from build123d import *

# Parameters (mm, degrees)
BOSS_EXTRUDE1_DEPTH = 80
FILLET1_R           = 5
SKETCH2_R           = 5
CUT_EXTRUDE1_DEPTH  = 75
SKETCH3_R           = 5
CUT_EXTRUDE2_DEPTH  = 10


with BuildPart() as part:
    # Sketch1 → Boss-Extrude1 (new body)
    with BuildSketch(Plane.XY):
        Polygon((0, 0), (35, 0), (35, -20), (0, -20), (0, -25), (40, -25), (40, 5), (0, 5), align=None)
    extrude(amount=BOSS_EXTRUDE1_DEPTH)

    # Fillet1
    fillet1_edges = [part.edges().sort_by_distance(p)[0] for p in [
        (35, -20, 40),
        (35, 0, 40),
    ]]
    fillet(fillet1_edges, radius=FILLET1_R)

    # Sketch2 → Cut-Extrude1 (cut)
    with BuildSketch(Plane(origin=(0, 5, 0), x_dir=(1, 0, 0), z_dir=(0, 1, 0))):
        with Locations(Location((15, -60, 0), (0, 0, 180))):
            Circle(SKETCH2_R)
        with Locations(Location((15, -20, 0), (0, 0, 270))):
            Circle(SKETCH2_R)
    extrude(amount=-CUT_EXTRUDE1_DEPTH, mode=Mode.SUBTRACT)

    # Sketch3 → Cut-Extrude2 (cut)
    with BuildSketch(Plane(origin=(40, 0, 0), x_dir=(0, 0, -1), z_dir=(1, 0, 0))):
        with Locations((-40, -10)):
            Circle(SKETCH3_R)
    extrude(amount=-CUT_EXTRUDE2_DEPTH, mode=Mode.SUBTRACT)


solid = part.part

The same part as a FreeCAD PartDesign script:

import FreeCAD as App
import Part
import Sketcher


def edges_at(feature, points):
    """Names of the edges that pass closest to the given points."""
    edges = feature.Shape.Edges
    near = lambda p: min(range(len(edges)), key=lambda i: edges[i].distToShape(Part.Vertex(*p))[0])
    return sorted({f"Edge{near(p) + 1}" for p in points})


def add_polygon(sketch, points):
    """Adds a closed chain of lines whose ends are joined by coincident constraints."""
    first, n = sketch.GeometryCount, len(points)
    for a, b in zip(points, points[1:] + points[:1]):
        sketch.addGeometry(Part.LineSegment(App.Vector(*a, 0), App.Vector(*b, 0)), False)
    for i in range(n):
        sketch.addConstraint(Sketcher.Constraint("Coincident", first + i, 2, first + (i + 1) % n, 1))

doc = App.newDocument("Part")
params = doc.addObject("Spreadsheet::Sheet", "Params")
for row, (alias, value) in enumerate([
    ("sketch1_width", "35 mm"),
    ("sketch1_width2", "40 mm"),
    ("sketch1_height", "20 mm"),
    ("sketch1_height2", "5 mm"),
    ("pad1_length", "80 mm"),
    ("fillet_radius", "5 mm"),
    ("sketch2_diameter", "10 mm"),
    ("pocket1_length", "75 mm"),
    ("sketch3_diameter", "10 mm"),
    ("pocket2_length", "10 mm"),
], start=1):
    params.set(f"A{row}", alias)
    params.set(f"B{row}", "=" + value)
    params.setAlias(f"B{row}", alias)

body = doc.addObject("PartDesign::Body", "Body")

# Sketch on XY plane
sketch1 = body.newObject("Sketcher::SketchObject", "Sketch")
sketch1.AttachmentSupport = (doc.getObject("XY_Plane"), [""])
sketch1.MapMode = "FlatFace"
add_polygon(sketch1, [(0, 0), (35, 0), (35, -20), (0, -20), (0, -25), (40, -25), (40, 5), (0, 5)])  # lines 0-7
sketch1.addConstraint(Sketcher.Constraint("Horizontal", 0))
sketch1.addConstraint(Sketcher.Constraint("Vertical", 1))
sketch1.addConstraint(Sketcher.Constraint("Horizontal", 2))
sketch1.addConstraint(Sketcher.Constraint("Vertical", 3))
sketch1.addConstraint(Sketcher.Constraint("Horizontal", 4))
sketch1.addConstraint(Sketcher.Constraint("Vertical", 5))
sketch1.addConstraint(Sketcher.Constraint("Horizontal", 6))
sketch1.addConstraint(Sketcher.Constraint("Vertical", 7))
sketch1.addConstraint(Sketcher.Constraint("Coincident", 7, 2, -1, 1))
sketch1.addConstraint(Sketcher.Constraint("PointOnObject", 2, 2, -2))
sketch1.addConstraint(Sketcher.Constraint("Equal", 3, 7))
sketch1.addConstraint(Sketcher.Constraint("DistanceX", 0, 1, 0, 2, 35.0))
sketch1.addConstraint(Sketcher.Constraint("DistanceX", 4, 1, 4, 2, 40.0))
sketch1.addConstraint(Sketcher.Constraint("DistanceY", 1, 2, 1, 1, 20.0))
sketch1.addConstraint(Sketcher.Constraint("DistanceY", 3, 2, 3, 1, 5.0))
sketch1.setExpression("Constraints[19]", "Params.sketch1_width")
sketch1.setExpression("Constraints[20]", "Params.sketch1_width2")
sketch1.setExpression("Constraints[21]", "Params.sketch1_height")
sketch1.setExpression("Constraints[22]", "Params.sketch1_height2")
pad1 = body.newObject("PartDesign::Pad", "Pad")
pad1.Profile = sketch1
pad1.setExpression("Length", "Params.pad1_length")
doc.recompute()

fillet = body.newObject("PartDesign::Fillet", "Fillet")
fillet.Base = (pad1, edges_at(pad1, [(35, -20, 40), (35, 0, 40)]))
fillet.setExpression("Radius", "Params.fillet_radius")

# Sketch on XZ plane
sketch2 = body.newObject("Sketcher::SketchObject", "Sketch001")
sketch2.AttachmentSupport = (doc.getObject("XZ_Plane"), [""])
sketch2.MapMode = "FlatFace"
sketch2.AttachmentOffset = App.Placement(App.Vector(0, 0, -5), App.Rotation())
sketch2.addGeometry(Part.Circle(App.Vector(15, 60, 0), App.Vector(0, 0, 1), 5), False)
sketch2.addGeometry(Part.Circle(App.Vector(15, 20, 0), App.Vector(0, 0, 1), 5), False)
sketch2.addConstraint(Sketcher.Constraint("Equal", 0, 1))
sketch2.addConstraint(Sketcher.Constraint("Vertical", 0, 3, 1, 3))
sketch2.addConstraint(Sketcher.Constraint("Diameter", 0, 10.0))
sketch2.addConstraint(Sketcher.Constraint("DistanceX", -1, 1, 0, 3, 15.0))
sketch2.addConstraint(Sketcher.Constraint("DistanceY", -1, 1, 0, 3, 60.0))
sketch2.addConstraint(Sketcher.Constraint("DistanceY", -1, 1, 1, 3, 20.0))
sketch2.setExpression("Constraints[2]", "Params.sketch2_diameter")
pocket1 = body.newObject("PartDesign::Pocket", "Pocket")
pocket1.Profile = sketch2
pocket1.setExpression("Length", "Params.pocket1_length")
pocket1.Reversed = True

# Sketch on YZ plane
sketch3 = body.newObject("Sketcher::SketchObject", "Sketch002")
sketch3.AttachmentSupport = (doc.getObject("YZ_Plane"), [""])
sketch3.MapMode = "FlatFace"
sketch3.AttachmentOffset = App.Placement(App.Vector(0, 0, 40), App.Rotation())
sketch3.addGeometry(Part.Circle(App.Vector(-10, 40, 0), App.Vector(0, 0, 1), 5), False)
sketch3.addConstraint(Sketcher.Constraint("Diameter", 0, 10.0))
sketch3.addConstraint(Sketcher.Constraint("DistanceX", 0, 3, -1, 1, 10.0))
sketch3.addConstraint(Sketcher.Constraint("DistanceY", -1, 1, 0, 3, 40.0))
sketch3.setExpression("Constraints[0]", "Params.sketch3_diameter")
pocket2 = body.newObject("PartDesign::Pocket", "Pocket001")
pocket2.Profile = sketch3
pocket2.setExpression("Length", "Params.pocket2_length")

doc.recompute()
